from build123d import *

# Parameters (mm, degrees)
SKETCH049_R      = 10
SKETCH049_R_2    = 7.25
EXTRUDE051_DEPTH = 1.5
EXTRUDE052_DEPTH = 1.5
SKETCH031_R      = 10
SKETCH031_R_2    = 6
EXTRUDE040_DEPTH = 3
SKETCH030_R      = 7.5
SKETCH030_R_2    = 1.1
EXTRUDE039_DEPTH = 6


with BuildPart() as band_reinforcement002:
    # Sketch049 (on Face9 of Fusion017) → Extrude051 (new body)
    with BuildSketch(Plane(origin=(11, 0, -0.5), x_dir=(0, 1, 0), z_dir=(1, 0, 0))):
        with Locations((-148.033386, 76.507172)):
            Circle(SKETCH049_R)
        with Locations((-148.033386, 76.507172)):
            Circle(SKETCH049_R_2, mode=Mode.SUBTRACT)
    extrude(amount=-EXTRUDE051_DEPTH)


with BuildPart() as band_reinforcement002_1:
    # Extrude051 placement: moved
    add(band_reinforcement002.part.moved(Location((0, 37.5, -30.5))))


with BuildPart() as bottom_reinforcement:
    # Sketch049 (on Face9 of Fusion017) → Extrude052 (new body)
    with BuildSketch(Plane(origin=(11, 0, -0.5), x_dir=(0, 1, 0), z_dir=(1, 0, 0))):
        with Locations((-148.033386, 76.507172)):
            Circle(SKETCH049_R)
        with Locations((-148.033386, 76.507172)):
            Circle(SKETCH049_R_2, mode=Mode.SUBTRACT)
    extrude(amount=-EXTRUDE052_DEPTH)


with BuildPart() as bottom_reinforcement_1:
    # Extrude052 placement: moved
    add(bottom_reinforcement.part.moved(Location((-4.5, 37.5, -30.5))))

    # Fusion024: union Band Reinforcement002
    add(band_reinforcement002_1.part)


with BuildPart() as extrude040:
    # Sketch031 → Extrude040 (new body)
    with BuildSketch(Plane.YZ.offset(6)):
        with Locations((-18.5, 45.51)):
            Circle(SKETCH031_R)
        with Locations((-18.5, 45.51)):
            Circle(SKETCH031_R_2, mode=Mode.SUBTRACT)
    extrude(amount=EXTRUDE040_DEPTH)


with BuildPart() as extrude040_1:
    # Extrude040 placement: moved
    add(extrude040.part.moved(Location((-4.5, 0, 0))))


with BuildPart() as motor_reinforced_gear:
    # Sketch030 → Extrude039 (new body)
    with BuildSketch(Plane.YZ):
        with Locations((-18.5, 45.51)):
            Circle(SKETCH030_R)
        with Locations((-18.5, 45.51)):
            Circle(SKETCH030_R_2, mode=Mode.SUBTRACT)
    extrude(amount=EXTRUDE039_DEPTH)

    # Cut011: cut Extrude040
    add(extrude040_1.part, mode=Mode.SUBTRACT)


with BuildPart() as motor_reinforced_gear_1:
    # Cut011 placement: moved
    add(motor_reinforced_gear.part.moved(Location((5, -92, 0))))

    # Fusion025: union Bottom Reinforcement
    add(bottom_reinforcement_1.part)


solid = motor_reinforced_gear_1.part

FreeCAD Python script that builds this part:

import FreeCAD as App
import Part
import Sketcher
from FreeCAD import Vector
Q = App.Units.Quantity

doc = App.newDocument("Part")
params = doc.addObject("Spreadsheet::Sheet", "Params")
for row, (alias, value) in enumerate([
    ("sketch1_diameter", "20 mm"),
    ("sketch1_diameter2", "14.5 mm"),
    ("pad1_length", "1.5 mm"),
    ("sketch2_diameter", "20 mm"),
    ("sketch2_diameter2", "14.5 mm"),
    ("pad2_length", "1.5 mm"),
    ("sketch3_diameter", "20 mm"),
    ("sketch3_diameter2", "12 mm"),
    ("pad3_length", "3 mm"),
    ("sketch4_diameter", "15 mm"),
    ("sketch4_diameter2", "2.2 mm"),
    ("pad4_length", "6 mm"),
], start=1):
    params.set(f"A{row}", alias)
    params.set(f"B{row}", "=" + value)
    params.setAlias(f"B{row}", alias)

body = doc.addObject("PartDesign::Body", "Body")

# Sketch on YZ plane
sketch1 = doc.addObject("Sketcher::SketchObject", "Sketch")
body.addObject(sketch1)
sketch1.AttachmentSupport = (doc.YZ_Plane, [""])
sketch1.MapMode = "FlatFace"
sketch1.AttachmentOffset = App.Placement(Vector(0, 0, 11), App.Rotation())
sketch1.addGeometry([
    Part.Circle(Vector(-148.033386, 76.007172, 0), Vector(0, 0, 1), 10),
    Part.Circle(Vector(-148.033386, 76.007172, 0), Vector(0, 0, 1), 7.25),
], False)
sketch1.addConstraint([
    Sketcher.Constraint("Coincident", 1, 3, 0, 3),
    Sketcher.Constraint("Diameter", 0, Q("20 mm")),
    Sketcher.Constraint("Diameter", 1, Q("14.5 mm")),
    Sketcher.Constraint("DistanceY", -1, 1, 0, 3, Q("76.007172 mm")),
    Sketcher.Constraint("DistanceX", 0, 3, -1, 1, Q("148.033386 mm")),
])
sketch1.setExpression("Constraints[1]", "Params.sketch1_diameter")
sketch1.setExpression("Constraints[2]", "Params.sketch1_diameter2")
pad1 = doc.addObject("PartDesign::Pad", "Pad")
body.addObject(pad1)
pad1.Profile = sketch1
pad1.setExpression("Length", "Params.pad1_length")
pad1.Reversed = True
body2 = doc.addObject("PartDesign::Body", "Body001")
doc.recompute()

body.Placement = App.Placement(Vector(0, 37.5, -30.5), App.Rotation(Vector(0, 0, 1), 0))
boolean = doc.addObject("PartDesign::Boolean", "Boolean")
body2.addObject(boolean)
boolean.Type = "Fuse"
boolean.addObjects([body])
body3 = doc.addObject("PartDesign::Body", "Body002")

# Sketch on YZ plane
sketch2 = doc.addObject("Sketcher::SketchObject", "Sketch001")
body3.addObject(sketch2)
sketch2.AttachmentSupport = (doc.getObject("YZ_Plane002"), [""])
sketch2.MapMode = "FlatFace"
sketch2.AttachmentOffset = App.Placement(Vector(0, 0, 11), App.Rotation())
sketch2.addGeometry([
    Part.Circle(Vector(-148.033386, 76.007172, 0), Vector(0, 0, 1), 10),
    Part.Circle(Vector(-148.033386, 76.007172, 0), Vector(0, 0, 1), 7.25),
], False)
sketch2.addConstraint([
    Sketcher.Constraint("Coincident", 1, 3, 0, 3),
    Sketcher.Constraint("Diameter", 0, Q("20 mm")),
    Sketcher.Constraint("Diameter", 1, Q("14.5 mm")),
    Sketcher.Constraint("DistanceY", -1, 1, 0, 3, Q("76.007172 mm")),
    Sketcher.Constraint("DistanceX", 0, 3, -1, 1, Q("148.033386 mm")),
])
sketch2.setExpression("Constraints[1]", "Params.sketch2_diameter")
sketch2.setExpression("Constraints[2]", "Params.sketch2_diameter2")
pad2 = doc.addObject("PartDesign::Pad", "Pad001")
body3.addObject(pad2)
pad2.Profile = sketch2
pad2.setExpression("Length", "Params.pad2_length")
pad2.Reversed = True
body4 = doc.addObject("PartDesign::Body", "Body003")
body4.AllowCompound = True
doc.recompute()

body3.Placement = App.Placement(Vector(-4.5, 37.5, -30.5), App.Rotation(Vector(0, 0, 1), 0))
boolean2 = doc.addObject("PartDesign::Boolean", "Boolean001")
body4.addObject(boolean2)
boolean2.Type = "Fuse"
boolean2.addObjects([body3])
doc.recompute()

boolean3 = doc.addObject("PartDesign::Boolean", "Boolean002")
body4.addObject(boolean3)
boolean3.Type = "Fuse"
boolean3.addObjects([body2])
body5 = doc.addObject("PartDesign::Body", "Body004")

# Sketch on YZ plane
sketch3 = doc.addObject("Sketcher::SketchObject", "Sketch002")
body5.addObject(sketch3)
sketch3.AttachmentSupport = (doc.getObject("YZ_Plane004"), [""])
sketch3.MapMode = "FlatFace"
sketch3.AttachmentOffset = App.Placement(Vector(0, 0, 6), App.Rotation())
sketch3.addGeometry([
    Part.Circle(Vector(-18.5, 45.51, 0), Vector(0, 0, 1), 10),
    Part.Circle(Vector(-18.5, 45.51, 0), Vector(0, 0, 1), 6),
], False)
sketch3.addConstraint([
    Sketcher.Constraint("Coincident", 1, 3, 0, 3),
    Sketcher.Constraint("Diameter", 0, Q("20 mm")),
    Sketcher.Constraint("Diameter", 1, Q("12 mm")),
    Sketcher.Constraint("DistanceX", 0, 3, -1, 1, Q("18.5 mm")),
    Sketcher.Constraint("DistanceY", -1, 1, 0, 3, Q("45.51 mm")),
])
sketch3.setExpression("Constraints[1]", "Params.sketch3_diameter")
sketch3.setExpression("Constraints[2]", "Params.sketch3_diameter2")
pad3 = doc.addObject("PartDesign::Pad", "Pad002")
body5.addObject(pad3)
pad3.Profile = sketch3
pad3.setExpression("Length", "Params.pad3_length")
body6 = doc.addObject("PartDesign::Body", "Body005")
doc.recompute()

body5.Placement = App.Placement(Vector(-4.5, 0, 0), App.Rotation(Vector(0, 0, 1), 0))
boolean4 = doc.addObject("PartDesign::Boolean", "Boolean003")
body6.addObject(boolean4)
boolean4.Type = "Fuse"
boolean4.addObjects([body5])
body7 = doc.addObject("PartDesign::Body", "Body006")

# Sketch on YZ plane
sketch4 = doc.addObject("Sketcher::SketchObject", "Sketch003")
body7.addObject(sketch4)
sketch4.AttachmentSupport = (doc.getObject("YZ_Plane006"), [""])
sketch4.MapMode = "FlatFace"
sketch4.addGeometry([
    Part.Circle(Vector(-18.5, 45.51, 0), Vector(0, 0, 1), 7.5),
    Part.Circle(Vector(-18.5, 45.51, 0), Vector(0, 0, 1), 1.1),
], False)
sketch4.addConstraint([
    Sketcher.Constraint("Coincident", 1, 3, 0, 3),
    Sketcher.Constraint("Diameter", 0, Q("15 mm")),
    Sketcher.Constraint("Diameter", 1, Q("2.2 mm")),
    Sketcher.Constraint("DistanceX", 0, 3, -1, 1, Q("18.5 mm")),
    Sketcher.Constraint("DistanceY", -1, 1, 0, 3, Q("45.51 mm")),
])
sketch4.setExpression("Constraints[1]", "Params.sketch4_diameter")
sketch4.setExpression("Constraints[2]", "Params.sketch4_diameter2")
pad4 = doc.addObject("PartDesign::Pad", "Pad003")
body7.addObject(pad4)
pad4.Profile = sketch4
pad4.setExpression("Length", "Params.pad4_length")
doc.recompute()

boolean5 = doc.addObject("PartDesign::Boolean", "Boolean004")
body7.addObject(boolean5)
boolean5.Type = "Cut"
boolean5.addObjects([body6])
body8 = doc.addObject("PartDesign::Body", "Body007")
doc.recompute()

body7.Placement = App.Placement(Vector(5, -92, 0), App.Rotation(Vector(0, 0, 1), 0))
boolean6 = doc.addObject("PartDesign::Boolean", "Boolean005")
body8.addObject(boolean6)
boolean6.Type = "Fuse"
boolean6.addObjects([body7])
doc.recompute()

boolean7 = doc.addObject("PartDesign::Boolean", "Boolean006")
body8.addObject(boolean7)
boolean7.Type = "Fuse"
boolean7.addObjects([body4])

doc.recompute()
